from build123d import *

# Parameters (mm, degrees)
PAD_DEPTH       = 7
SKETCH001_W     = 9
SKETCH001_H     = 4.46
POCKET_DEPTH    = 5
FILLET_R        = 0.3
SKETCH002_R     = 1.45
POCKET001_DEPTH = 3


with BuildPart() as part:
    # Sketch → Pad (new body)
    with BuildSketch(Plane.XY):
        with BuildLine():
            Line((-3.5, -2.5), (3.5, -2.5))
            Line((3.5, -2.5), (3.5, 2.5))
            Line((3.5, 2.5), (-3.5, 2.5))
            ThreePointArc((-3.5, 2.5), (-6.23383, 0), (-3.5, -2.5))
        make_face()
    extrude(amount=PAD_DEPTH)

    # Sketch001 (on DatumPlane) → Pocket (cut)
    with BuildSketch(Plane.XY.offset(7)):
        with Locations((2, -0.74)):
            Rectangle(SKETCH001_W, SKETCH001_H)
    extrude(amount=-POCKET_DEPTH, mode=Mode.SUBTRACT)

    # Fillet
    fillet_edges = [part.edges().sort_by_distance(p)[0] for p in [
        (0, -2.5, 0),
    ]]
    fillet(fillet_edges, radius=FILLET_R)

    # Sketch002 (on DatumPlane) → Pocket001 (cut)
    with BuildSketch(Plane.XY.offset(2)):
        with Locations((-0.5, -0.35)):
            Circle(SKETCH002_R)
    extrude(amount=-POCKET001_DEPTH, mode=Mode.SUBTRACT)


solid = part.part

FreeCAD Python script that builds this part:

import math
import FreeCAD as App
import Part
import Sketcher

V = App.Vector
Q = App.Units.Quantity


def edges_at(feature, points):
    """Names of the edges that pass closest to the given points."""
    edges = feature.Shape.Edges
    near = lambda p: min(range(len(edges)), key=lambda i: edges[i].distToShape(Part.Vertex(*p))[0])
    return sorted({f"Edge{near(p) + 1}" for p in points})

doc = App.newDocument("Part")
body = doc.addObject("PartDesign::Body", "Body")

# Sketch on XY plane
sketch1 = body.newObject("Sketcher::SketchObject", "Sketch")
sketch1.AttachmentSupport = (doc.getObject("XY_Plane"), [""])
sketch1.MapMode = "FlatFace"
sketch1.addGeometry([
    Part.LineSegment(V(-3.5, -2.5, 0), V(3.5, -2.5, 0)),
    Part.LineSegment(V(3.5, -2.5, 0), V(3.5, 2.5, 0)),
    Part.LineSegment(V(3.5, 2.5, 0), V(-3.5, 2.5, 0)),
    Part.ArcOfCircle(Part.Circle(V(-3.7, 0, 0), V(0, 0, 1), 2.5), math.radians(85), math.radians(275)),
], False)
sketch1.addConstraint([
    Sketcher.Constraint("Coincident", 0, 2, 1, 1),
    Sketcher.Constraint("Coincident", 1, 2, 2, 1),
    Sketcher.Constraint("Coincident", 2, 2, 3, 1),
    Sketcher.Constraint("Coincident", 3, 2, 0, 1),
    Sketcher.Constraint("Horizontal", 0),
    Sketcher.Constraint("Vertical", 1),
    Sketcher.Constraint("Horizontal", 2),
    Sketcher.Constraint("Symmetric", 0, 2, 2, 2, -1, 1),
    Sketcher.Constraint("PointOnObject", 3, 3, -1),
    Sketcher.Constraint("DistanceX", 0, 1, 0, 2, Q("7 mm")),
    Sketcher.Constraint("DistanceY", 1, 1, 1, 2, Q("5 mm")),
    Sketcher.Constraint("Radius", 3, Q("2.51 mm")),
])
pad1 = body.newObject("PartDesign::Pad", "Pad")
pad1.Profile = sketch1
pad1.Length = 7

# Sketch on XY plane
sketch2 = body.newObject("Sketcher::SketchObject", "Sketch001")
sketch2.AttachmentSupport = (doc.getObject("XY_Plane"), [""])
sketch2.MapMode = "FlatFace"
sketch2.AttachmentOffset = App.Placement(V(0, 0, 7), App.Rotation())
sketch2.addGeometry([
    Part.LineSegment(V(-2.5, 1.5, 0), V(-2.5, -3, 0)),
    Part.LineSegment(V(-2.5, -3, 0), V(6.5, -3, 0)),
    Part.LineSegment(V(6.5, -3, 0), V(6.5, 1.5, 0)),
    Part.LineSegment(V(6.5, 1.5, 0), V(-2.5, 1.5, 0)),
], False)
sketch2.addConstraint([
    Sketcher.Constraint("Coincident", 0, 2, 1, 1),
    Sketcher.Constraint("Coincident", 1, 2, 2, 1),
    Sketcher.Constraint("Coincident", 2, 2, 3, 1),
    Sketcher.Constraint("Coincident", 3, 2, 0, 1),
    Sketcher.Constraint("Vertical", 0),
    Sketcher.Constraint("Horizontal", 1),
    Sketcher.Constraint("Vertical", 2),
    Sketcher.Constraint("Horizontal", 3),
    Sketcher.Constraint("DistanceX", 1, 1, 1, 2, Q("9 mm")),
    Sketcher.Constraint("DistanceY", 0, 2, 0, 1, Q("4.46 mm")),
    Sketcher.Constraint("DistanceX", 0, 2, -1, 1, Q("2.5 mm")),
    Sketcher.Constraint("DistanceY", 0, 2, -1, 1, Q("2.97 mm")),
])
pocket1 = body.newObject("PartDesign::Pocket", "Pocket")
pocket1.Profile = sketch2
pocket1.Length = 5
doc.recompute()

fillet = body.newObject("PartDesign::Fillet", "Fillet")
fillet.Base = (pocket1, edges_at(pocket1, [(0, -2.5, 0)]))
fillet.Radius = 0.3

# Sketch on XY plane
sketch3 = body.newObject("Sketcher::SketchObject", "Sketch002")
sketch3.AttachmentSupport = (doc.getObject("XY_Plane"), [""])
sketch3.MapMode = "FlatFace"
sketch3.AttachmentOffset = App.Placement(V(0, 0, 2), App.Rotation())
sketch3.addGeometry(Part.Circle(V(-0.5, -0.3, 0), V(0, 0, 1), 1.4), False)
sketch3.addConstraint([
    Sketcher.Constraint("Diameter", 0, Q("2.9 mm")),
    Sketcher.Constraint("DistanceX", 0, 3, -1, 1, Q("0.5 mm")),
    Sketcher.Constraint("DistanceY", 0, 3, -1, 1, Q("0.35 mm")),
])
pocket2 = body.newObject("PartDesign::Pocket", "Pocket001")
pocket2.Profile = sketch3
pocket2.Length = 3

doc.recompute()
